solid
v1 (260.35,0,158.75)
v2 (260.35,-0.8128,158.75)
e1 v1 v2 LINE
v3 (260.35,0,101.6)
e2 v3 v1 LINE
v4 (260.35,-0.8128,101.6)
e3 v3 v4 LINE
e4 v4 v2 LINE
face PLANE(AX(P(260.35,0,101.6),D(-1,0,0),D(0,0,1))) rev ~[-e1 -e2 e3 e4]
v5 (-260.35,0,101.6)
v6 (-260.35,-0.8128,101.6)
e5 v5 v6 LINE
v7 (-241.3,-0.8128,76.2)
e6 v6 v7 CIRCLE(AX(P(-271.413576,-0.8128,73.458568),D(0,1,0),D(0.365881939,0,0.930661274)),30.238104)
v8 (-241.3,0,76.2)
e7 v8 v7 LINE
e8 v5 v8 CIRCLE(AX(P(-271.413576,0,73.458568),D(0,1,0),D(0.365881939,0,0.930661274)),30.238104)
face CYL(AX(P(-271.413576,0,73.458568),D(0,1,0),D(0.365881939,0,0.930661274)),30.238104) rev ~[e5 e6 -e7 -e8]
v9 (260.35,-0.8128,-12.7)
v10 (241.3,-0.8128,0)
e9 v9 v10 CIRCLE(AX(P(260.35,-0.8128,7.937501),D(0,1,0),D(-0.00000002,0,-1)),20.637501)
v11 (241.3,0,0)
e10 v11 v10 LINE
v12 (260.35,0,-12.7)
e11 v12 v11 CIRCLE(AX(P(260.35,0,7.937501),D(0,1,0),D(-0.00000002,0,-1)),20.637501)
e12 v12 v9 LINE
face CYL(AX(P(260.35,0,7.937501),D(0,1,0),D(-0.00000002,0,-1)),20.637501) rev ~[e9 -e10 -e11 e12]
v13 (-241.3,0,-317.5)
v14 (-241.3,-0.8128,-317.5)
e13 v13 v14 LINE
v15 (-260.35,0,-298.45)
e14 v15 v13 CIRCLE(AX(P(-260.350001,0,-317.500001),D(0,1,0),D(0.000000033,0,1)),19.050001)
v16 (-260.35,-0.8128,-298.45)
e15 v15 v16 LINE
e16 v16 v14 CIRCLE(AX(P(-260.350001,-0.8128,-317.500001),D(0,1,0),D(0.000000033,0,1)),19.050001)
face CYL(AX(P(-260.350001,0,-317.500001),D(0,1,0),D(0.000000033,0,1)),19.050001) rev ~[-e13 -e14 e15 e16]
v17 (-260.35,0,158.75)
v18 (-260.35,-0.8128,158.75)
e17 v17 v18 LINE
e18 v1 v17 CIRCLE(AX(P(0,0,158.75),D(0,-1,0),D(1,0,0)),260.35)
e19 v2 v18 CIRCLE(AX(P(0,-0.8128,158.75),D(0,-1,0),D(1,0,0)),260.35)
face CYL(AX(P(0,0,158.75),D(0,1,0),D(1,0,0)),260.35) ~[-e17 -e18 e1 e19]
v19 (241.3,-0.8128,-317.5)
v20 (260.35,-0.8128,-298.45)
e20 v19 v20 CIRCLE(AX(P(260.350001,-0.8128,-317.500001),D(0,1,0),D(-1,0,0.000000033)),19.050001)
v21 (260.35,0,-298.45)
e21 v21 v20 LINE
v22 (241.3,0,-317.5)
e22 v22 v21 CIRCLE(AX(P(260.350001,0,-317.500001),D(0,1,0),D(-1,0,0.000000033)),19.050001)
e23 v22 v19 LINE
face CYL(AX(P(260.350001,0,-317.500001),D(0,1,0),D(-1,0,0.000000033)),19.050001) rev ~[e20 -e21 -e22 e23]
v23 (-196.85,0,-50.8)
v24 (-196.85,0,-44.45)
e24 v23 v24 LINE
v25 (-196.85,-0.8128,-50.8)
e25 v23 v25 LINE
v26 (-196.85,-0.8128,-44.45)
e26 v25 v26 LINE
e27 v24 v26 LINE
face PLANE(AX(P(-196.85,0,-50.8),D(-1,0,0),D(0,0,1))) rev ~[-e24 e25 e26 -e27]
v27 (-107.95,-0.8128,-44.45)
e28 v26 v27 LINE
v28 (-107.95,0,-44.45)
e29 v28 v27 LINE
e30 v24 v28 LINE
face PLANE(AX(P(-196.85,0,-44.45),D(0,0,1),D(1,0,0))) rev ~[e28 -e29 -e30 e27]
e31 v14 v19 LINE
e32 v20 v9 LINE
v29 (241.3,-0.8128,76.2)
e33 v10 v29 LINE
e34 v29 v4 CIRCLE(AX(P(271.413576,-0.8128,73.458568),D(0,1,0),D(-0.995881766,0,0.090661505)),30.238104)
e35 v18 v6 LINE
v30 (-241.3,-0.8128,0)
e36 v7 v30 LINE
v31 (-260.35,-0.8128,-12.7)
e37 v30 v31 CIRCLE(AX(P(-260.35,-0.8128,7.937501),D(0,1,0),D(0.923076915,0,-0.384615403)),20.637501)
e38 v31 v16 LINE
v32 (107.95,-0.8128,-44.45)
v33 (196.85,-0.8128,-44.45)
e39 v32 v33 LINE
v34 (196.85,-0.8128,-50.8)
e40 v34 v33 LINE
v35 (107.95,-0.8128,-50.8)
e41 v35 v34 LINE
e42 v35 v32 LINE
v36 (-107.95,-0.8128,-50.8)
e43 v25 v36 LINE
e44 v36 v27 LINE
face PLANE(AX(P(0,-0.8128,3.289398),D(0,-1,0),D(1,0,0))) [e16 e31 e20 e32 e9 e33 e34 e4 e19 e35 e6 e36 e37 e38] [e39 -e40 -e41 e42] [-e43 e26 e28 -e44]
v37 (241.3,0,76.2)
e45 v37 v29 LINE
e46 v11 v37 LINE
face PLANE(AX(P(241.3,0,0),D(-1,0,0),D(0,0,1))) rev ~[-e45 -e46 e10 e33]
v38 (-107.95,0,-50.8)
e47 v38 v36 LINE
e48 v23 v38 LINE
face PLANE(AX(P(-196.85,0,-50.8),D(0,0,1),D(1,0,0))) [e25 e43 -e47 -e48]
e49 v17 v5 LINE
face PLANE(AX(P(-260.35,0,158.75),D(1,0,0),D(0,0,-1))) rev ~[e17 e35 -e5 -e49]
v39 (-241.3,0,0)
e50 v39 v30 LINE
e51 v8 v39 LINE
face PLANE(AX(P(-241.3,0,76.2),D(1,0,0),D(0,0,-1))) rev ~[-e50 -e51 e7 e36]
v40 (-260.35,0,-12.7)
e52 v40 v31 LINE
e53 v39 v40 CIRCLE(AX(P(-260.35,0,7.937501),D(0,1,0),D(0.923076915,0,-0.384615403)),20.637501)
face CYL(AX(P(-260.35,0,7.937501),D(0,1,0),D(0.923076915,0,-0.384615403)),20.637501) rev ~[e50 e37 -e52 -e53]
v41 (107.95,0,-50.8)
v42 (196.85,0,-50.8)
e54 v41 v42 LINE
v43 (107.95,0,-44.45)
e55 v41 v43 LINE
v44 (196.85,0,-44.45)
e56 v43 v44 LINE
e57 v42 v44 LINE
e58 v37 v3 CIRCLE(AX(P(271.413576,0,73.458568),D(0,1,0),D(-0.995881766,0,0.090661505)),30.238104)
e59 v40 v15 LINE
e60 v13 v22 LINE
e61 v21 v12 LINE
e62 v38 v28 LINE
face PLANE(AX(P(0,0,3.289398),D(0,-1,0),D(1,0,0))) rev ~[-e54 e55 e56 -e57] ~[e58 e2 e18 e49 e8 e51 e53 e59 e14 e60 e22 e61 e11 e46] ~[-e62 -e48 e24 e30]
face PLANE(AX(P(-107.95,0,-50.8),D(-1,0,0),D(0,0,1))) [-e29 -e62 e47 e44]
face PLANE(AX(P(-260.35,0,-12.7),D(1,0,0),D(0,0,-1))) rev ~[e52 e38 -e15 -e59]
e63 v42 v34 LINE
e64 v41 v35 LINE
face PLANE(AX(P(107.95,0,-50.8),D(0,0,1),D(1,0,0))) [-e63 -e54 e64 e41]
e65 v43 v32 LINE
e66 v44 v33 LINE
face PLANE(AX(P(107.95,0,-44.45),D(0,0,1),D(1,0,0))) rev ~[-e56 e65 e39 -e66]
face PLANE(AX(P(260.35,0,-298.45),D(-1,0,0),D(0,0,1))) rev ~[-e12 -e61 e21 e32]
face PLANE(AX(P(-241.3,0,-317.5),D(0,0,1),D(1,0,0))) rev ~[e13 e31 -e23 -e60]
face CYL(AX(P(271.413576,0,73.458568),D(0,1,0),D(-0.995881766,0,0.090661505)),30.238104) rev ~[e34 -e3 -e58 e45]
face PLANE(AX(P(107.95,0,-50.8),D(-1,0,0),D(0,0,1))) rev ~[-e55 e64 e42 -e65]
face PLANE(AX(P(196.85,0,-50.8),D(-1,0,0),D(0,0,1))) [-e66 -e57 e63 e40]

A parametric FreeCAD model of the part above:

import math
import FreeCAD as App
import Part
import Sketcher
Q = App.Units.Quantity


def add_polygon(sketch, points):
    """Adds a closed chain of lines whose ends are joined by coincident constraints."""
    first, n = sketch.GeometryCount, len(points)
    for a, b in zip(points, points[1:] + points[:1]):
        sketch.addGeometry(Part.LineSegment(App.Vector(*a, 0), App.Vector(*b, 0)), False)
    for i in range(n):
        sketch.addConstraint(Sketcher.Constraint("Coincident", first + i, 2, first + (i + 1) % n, 1))

doc = App.newDocument("Part")
params = doc.addObject("Spreadsheet::Sheet", "Params")
for row, (alias, value) in enumerate([
    ("sketch1_width", "19 in"),
    ("sketch1_height", "3 in"),
    ("sketch1_radius", "0.75 in"),
    ("sketch1_width2", "3.5 in"),
    ("sketch1_radius2", "0.8125 in"),
    ("pad1_length", "0.032 in"),
], start=1):
    params.set(f"A{row}", alias)
    params.set(f"B{row}", "=" + value)
    params.setAlias(f"B{row}", alias)

body = doc.addObject("PartDesign::Body", "Body")

# Sketch on XZ plane
sketch1 = body.newObject("Sketcher::SketchObject", "Sketch")
sketch1.AttachmentSupport = (doc.getObject("XZ_Plane"), [""])
sketch1.MapMode = "FlatFace"
sketch1.addGeometry(Part.ArcOfCircle(Part.Circle(App.Vector(-260, 8, 0), App.Vector(0, 0, 1), 21), math.radians(-90), math.radians(-23)), False)  # 0
sketch1.addGeometry(Part.LineSegment(App.Vector(-260, -13, 0), App.Vector(-260, -298, 0)), False)  # 1
sketch1.addGeometry(Part.ArcOfCircle(Part.Circle(App.Vector(-260, -318, 0), App.Vector(0, 0, 1), 19), math.radians(0), math.radians(90)), False)  # 2
sketch1.addGeometry(Part.LineSegment(App.Vector(-241, -318, 0), App.Vector(241, -318, 0)), False)  # 3
sketch1.addGeometry(Part.ArcOfCircle(Part.Circle(App.Vector(260, -318, 0), App.Vector(0, 0, 1), 19), math.radians(90), math.radians(180)), False)  # 4
sketch1.addGeometry(Part.LineSegment(App.Vector(260, -298, 0), App.Vector(260, -13, 0)), False)  # 5
sketch1.addGeometry(Part.ArcOfCircle(Part.Circle(App.Vector(260, 8, 0), App.Vector(0, 0, 1), 21), math.radians(-157), math.radians(-90)), False)  # 6
sketch1.addGeometry(Part.LineSegment(App.Vector(241, 0, 0), App.Vector(241, 76, 0)), False)  # 7
sketch1.addGeometry(Part.ArcOfCircle(Part.Circle(App.Vector(271, 73, 0), App.Vector(0, 0, 1), 30), math.radians(111), math.radians(175)), False)  # 8
sketch1.addGeometry(Part.LineSegment(App.Vector(260, 102, 0), App.Vector(260, 159, 0)), False)  # 9
sketch1.addGeometry(Part.ArcOfCircle(Part.Circle(App.Vector(0, 159, 0), App.Vector(0, 0, 1), 260), math.radians(0), math.radians(180)), False)  # 10
sketch1.addGeometry(Part.LineSegment(App.Vector(-260, 159, 0), App.Vector(-260, 102, 0)), False)  # 11
sketch1.addGeometry(Part.ArcOfCircle(Part.Circle(App.Vector(-271, 73, 0), App.Vector(0, 0, 1), 30), math.radians(5), math.radians(69)), False)  # 12
sketch1.addGeometry(Part.LineSegment(App.Vector(-241, 76, 0), App.Vector(-241, 0, 0)), False)  # 13
add_polygon(sketch1, [(-108, -51), (-197, -51), (-197, -44), (-108, -44)])  # lines 14-17
add_polygon(sketch1, [(197, -51), (108, -51), (108, -44), (197, -44)])  # lines 18-21
sketch1.addConstraint([
    Sketcher.Constraint("Coincident", 0, 1, 1, 1),
    Sketcher.Constraint("Coincident", 1, 2, 2, 2),
    Sketcher.Constraint("Coincident", 2, 1, 3, 1),
    Sketcher.Constraint("Coincident", 3, 2, 4, 2),
    Sketcher.Constraint("Coincident", 4, 1, 5, 1),
    Sketcher.Constraint("Coincident", 5, 2, 6, 2),
    Sketcher.Constraint("Coincident", 6, 1, 7, 1),
    Sketcher.Constraint("Coincident", 7, 2, 8, 2),
    Sketcher.Constraint("Coincident", 8, 1, 9, 1),
    Sketcher.Constraint("Tangent", 9, 2, 10, 1),
    Sketcher.Constraint("Tangent", 10, 2, 11, 1),
    Sketcher.Constraint("Coincident", 11, 2, 12, 2),
    Sketcher.Constraint("Coincident", 12, 1, 13, 1),
    Sketcher.Constraint("Coincident", 13, 2, 0, 2),
    Sketcher.Constraint("Vertical", 1),
    Sketcher.Constraint("Horizontal", 3),
    Sketcher.Constraint("Vertical", 5),
    Sketcher.Constraint("Vertical", 7),
    Sketcher.Constraint("Vertical", 9),
    Sketcher.Constraint("Vertical", 11),
    Sketcher.Constraint("Vertical", 13),
    Sketcher.Constraint("Horizontal", 14),
    Sketcher.Constraint("Vertical", 15),
    Sketcher.Constraint("Horizontal", 16),
    Sketcher.Constraint("Vertical", 17),
    Sketcher.Constraint("Horizontal", 18),
    Sketcher.Constraint("Vertical", 19),
    Sketcher.Constraint("Horizontal", 20),
    Sketcher.Constraint("Vertical", 21),
    Sketcher.Constraint("Equal", 2, 4),
    Sketcher.Constraint("Equal", 0, 6),
    Sketcher.Constraint("Equal", 8, 12),
    Sketcher.Constraint("Symmetric", 6, 1, 13, 2, -1, 1),
    Sketcher.Constraint("Symmetric", 2, 3, 4, 3, -2),
    Sketcher.Constraint("Symmetric", 0, 3, 6, 3, -2),
    Sketcher.Constraint("Symmetric", 8, 3, 12, 3, -2),
    Sketcher.Constraint("Symmetric", 17, 2, 18, 2, -2),
    Sketcher.Constraint("Symmetric", 15, 2, 20, 2, -2),
    Sketcher.Constraint("PointOnObject", 10, 3, -2),
    Sketcher.Constraint("Horizontal", 4, 3, 2, 1),
    Sketcher.Constraint("Vertical", 0, 3, 2, 3),
    Sketcher.Constraint("Vertical", 2, 3, 0, 1),
    Sketcher.Constraint("Vertical", 6, 3, 4, 1),
    Sketcher.Constraint("Vertical", 3, 2, 6, 1),
    Sketcher.Constraint("Vertical", 5, 2, 8, 1),
    Sketcher.Constraint("DistanceX", 3, 1, 3, 2, Q("19 in")),
    Sketcher.Constraint("DistanceY", 7, 1, 7, 2, Q("3 in")),
    Sketcher.Constraint("Radius", 2, Q("0.75 in")),
    Sketcher.Constraint("DistanceX", 14, 2, 14, 1, Q("3.5 in")),
    Sketcher.Constraint("DistanceY", -1, 1, 8, 1, Q("4 in")),
    Sketcher.Constraint("DistanceY", 14, 2, -1, 1, Q("2 in")),
    Sketcher.Constraint("Radius", 0, Q("0.8125 in")),
    Sketcher.Constraint("DistanceY", 2, 3, 0, 1, Q("12 in")),
    Sketcher.Constraint("DistanceY", 1, 2, 10, 2, Q("18 in")),
    Sketcher.Constraint("DistanceX", 0, 1, 16, 2, Q("6 in")),
    Sketcher.Constraint("DistanceY", 15, 1, 15, 2, Q("0.25 in")),
    Sketcher.Constraint("Radius", 8, 30.238104),
])
sketch1.setExpression("Constraints[53]", "Params.sketch1_width")
sketch1.setExpression("Constraints[54]", "Params.sketch1_height")
sketch1.setExpression("Constraints[55]", "Params.sketch1_radius")
sketch1.setExpression("Constraints[56]", "Params.sketch1_width2")
sketch1.setExpression("Constraints[59]", "Params.sketch1_radius2")
pad1 = body.newObject("PartDesign::Pad", "Pad")
pad1.Profile = sketch1
pad1.setExpression("Length", "Params.pad1_length")

doc.recompute()
